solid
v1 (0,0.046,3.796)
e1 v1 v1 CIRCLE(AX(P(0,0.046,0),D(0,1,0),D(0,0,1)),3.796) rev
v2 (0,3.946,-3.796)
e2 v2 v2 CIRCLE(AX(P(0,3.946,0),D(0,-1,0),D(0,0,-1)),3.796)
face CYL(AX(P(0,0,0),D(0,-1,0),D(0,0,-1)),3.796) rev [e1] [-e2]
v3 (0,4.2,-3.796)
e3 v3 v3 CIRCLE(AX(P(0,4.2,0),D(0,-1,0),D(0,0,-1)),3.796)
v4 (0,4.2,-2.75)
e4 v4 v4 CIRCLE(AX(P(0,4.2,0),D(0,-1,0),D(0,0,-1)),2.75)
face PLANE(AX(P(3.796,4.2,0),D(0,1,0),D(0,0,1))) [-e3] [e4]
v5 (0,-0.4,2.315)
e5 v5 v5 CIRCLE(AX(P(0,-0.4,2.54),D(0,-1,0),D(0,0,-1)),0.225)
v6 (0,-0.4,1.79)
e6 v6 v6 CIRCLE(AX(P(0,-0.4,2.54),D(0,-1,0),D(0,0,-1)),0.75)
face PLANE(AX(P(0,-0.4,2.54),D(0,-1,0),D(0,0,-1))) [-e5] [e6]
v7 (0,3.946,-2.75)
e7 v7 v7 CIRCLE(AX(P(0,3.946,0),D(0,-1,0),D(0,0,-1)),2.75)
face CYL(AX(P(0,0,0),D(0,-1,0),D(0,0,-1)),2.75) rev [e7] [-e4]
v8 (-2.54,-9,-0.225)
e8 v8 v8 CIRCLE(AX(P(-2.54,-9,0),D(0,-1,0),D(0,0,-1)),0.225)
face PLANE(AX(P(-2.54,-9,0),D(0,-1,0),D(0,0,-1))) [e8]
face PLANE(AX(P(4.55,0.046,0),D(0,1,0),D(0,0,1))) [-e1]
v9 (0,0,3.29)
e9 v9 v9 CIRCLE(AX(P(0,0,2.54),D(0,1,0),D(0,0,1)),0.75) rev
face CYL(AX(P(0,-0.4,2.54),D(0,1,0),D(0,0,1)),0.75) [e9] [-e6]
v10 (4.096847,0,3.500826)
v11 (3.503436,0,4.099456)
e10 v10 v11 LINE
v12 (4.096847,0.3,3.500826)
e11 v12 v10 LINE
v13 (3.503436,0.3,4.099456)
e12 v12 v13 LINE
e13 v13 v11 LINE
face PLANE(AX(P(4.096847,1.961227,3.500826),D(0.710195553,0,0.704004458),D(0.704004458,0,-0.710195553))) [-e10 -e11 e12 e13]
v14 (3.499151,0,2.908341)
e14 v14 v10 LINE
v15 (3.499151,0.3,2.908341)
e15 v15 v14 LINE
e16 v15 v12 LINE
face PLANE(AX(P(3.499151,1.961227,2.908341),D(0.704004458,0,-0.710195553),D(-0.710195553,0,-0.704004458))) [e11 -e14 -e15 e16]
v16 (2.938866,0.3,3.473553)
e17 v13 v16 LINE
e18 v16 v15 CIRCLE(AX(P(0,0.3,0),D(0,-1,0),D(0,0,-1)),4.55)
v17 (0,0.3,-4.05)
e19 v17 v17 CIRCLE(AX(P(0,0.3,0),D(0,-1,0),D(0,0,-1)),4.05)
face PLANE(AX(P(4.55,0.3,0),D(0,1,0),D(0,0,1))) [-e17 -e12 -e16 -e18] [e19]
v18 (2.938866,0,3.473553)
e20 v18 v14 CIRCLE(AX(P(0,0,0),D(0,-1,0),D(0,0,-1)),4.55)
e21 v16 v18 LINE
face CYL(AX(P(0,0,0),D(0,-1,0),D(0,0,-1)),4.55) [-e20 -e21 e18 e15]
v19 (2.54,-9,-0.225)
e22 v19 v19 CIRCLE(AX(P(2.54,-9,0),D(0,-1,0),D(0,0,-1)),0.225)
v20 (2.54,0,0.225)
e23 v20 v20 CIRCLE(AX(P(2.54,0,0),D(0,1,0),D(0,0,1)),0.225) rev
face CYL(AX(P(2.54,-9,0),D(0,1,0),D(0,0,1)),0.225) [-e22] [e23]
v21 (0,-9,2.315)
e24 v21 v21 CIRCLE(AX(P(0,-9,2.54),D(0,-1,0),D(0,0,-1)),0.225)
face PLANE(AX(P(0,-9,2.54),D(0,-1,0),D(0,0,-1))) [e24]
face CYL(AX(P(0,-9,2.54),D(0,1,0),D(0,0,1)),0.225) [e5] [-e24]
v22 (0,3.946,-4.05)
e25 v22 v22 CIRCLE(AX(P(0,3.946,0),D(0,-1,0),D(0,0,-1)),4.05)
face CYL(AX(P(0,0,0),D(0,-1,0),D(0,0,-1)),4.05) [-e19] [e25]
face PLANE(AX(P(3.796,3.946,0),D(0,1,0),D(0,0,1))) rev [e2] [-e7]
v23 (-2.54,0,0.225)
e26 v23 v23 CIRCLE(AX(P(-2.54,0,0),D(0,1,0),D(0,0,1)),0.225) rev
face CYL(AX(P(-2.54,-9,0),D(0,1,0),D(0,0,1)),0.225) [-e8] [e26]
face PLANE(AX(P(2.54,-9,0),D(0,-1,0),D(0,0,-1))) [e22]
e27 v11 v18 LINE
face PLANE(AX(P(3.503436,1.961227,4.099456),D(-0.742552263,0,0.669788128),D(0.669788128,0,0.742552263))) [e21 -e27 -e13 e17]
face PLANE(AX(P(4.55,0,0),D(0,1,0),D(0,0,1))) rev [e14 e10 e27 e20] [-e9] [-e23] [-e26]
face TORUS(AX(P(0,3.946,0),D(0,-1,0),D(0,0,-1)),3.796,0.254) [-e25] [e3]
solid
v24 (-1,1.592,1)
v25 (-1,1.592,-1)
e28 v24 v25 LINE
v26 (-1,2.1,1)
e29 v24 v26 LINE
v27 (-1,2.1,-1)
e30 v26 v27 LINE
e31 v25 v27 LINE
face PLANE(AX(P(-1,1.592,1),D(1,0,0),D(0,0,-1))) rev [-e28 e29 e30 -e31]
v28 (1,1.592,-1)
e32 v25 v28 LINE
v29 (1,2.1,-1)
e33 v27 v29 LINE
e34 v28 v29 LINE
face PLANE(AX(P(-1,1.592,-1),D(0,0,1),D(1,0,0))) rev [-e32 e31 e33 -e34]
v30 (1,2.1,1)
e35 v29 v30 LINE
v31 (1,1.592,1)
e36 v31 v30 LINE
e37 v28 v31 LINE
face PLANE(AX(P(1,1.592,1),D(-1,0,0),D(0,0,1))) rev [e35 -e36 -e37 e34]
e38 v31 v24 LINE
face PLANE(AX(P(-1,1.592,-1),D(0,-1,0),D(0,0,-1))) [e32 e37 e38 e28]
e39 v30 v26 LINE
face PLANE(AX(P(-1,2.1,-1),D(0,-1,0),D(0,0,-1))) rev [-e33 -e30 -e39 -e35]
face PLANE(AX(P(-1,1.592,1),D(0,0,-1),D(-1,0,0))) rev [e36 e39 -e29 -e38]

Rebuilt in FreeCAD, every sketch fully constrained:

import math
import FreeCAD as App
import Part
import Sketcher
Q = App.Units.Quantity

doc = App.newDocument("Part")
body = doc.addObject("PartDesign::Body", "Body")

# Sketch on XY plane
sketch1 = doc.addObject("Sketcher::SketchObject", "Sketch")
body.addObject(sketch1)
sketch1.AttachmentSupport = (doc.XY_Plane, [""])
sketch1.MapMode = "FlatFace"
sketch1.addGeometry([
    Part.LineSegment(App.Vector(4.55, 0, 0), App.Vector(4.55, 0.3, 0)),  # 0
    Part.LineSegment(App.Vector(4.55, 0.3, 0), App.Vector(4.05, 0.3, 0)),  # 1
    Part.LineSegment(App.Vector(4.05, 0.3, 0), App.Vector(4.05, 3.946, 0)),  # 2
    Part.ArcOfCircle(Part.Circle(App.Vector(3.796, 3.946, 0), App.Vector(0, 0, 1), 0.254), math.radians(0), math.radians(90)),  # 3
    Part.LineSegment(App.Vector(3.796, 4.2, 0), App.Vector(2.75, 4.2, 0)),  # 4
    Part.LineSegment(App.Vector(2.75, 4.2, 0), App.Vector(2.75, 3.946, 0)),  # 5
    Part.LineSegment(App.Vector(2.75, 3.946, 0), App.Vector(3.796, 3.946, 0)),  # 6
    Part.LineSegment(App.Vector(3.796, 3.946, 0), App.Vector(3.796, 0.046, 0)),  # 7
    Part.LineSegment(App.Vector(3.796, 0.046, 0), App.Vector(4.296, 0.046, 0)),  # 8
    Part.LineSegment(App.Vector(4.296, 0.046, 0), App.Vector(4.296, 0, 0)),  # 9
    Part.LineSegment(App.Vector(4.296, 0, 0), App.Vector(4.55, 0, 0)),  # 10
], False)
sketch1.addConstraint([
    Sketcher.Constraint("Coincident", 0, 2, 1, 1),
    Sketcher.Constraint("Coincident", 1, 2, 2, 1),
    Sketcher.Constraint("Tangent", 2, 2, 3, 1),
    Sketcher.Constraint("Tangent", 3, 2, 4, 1),
    Sketcher.Constraint("Coincident", 4, 2, 5, 1),
    Sketcher.Constraint("Coincident", 5, 2, 6, 1),
    Sketcher.Constraint("Coincident", 6, 2, 7, 1),
    Sketcher.Constraint("Coincident", 7, 2, 8, 1),
    Sketcher.Constraint("Coincident", 8, 2, 9, 1),
    Sketcher.Constraint("Coincident", 9, 2, 10, 1),
    Sketcher.Constraint("Coincident", 10, 2, 0, 1),
    Sketcher.Constraint("Vertical", 0),
    Sketcher.Constraint("Horizontal", 1),
    Sketcher.Constraint("Vertical", 2),
    Sketcher.Constraint("Horizontal", 4),
    Sketcher.Constraint("Vertical", 5),
    Sketcher.Constraint("Horizontal", 6),
    Sketcher.Constraint("Vertical", 7),
    Sketcher.Constraint("Horizontal", 8),
    Sketcher.Constraint("Vertical", 9),
    Sketcher.Constraint("Horizontal", 10),
    Sketcher.Constraint("Coincident", 6, 2, 3, 3),
    Sketcher.Constraint("PointOnObject", 9, 2, -1),
    Sketcher.Constraint("Equal", 1, 8),
    Sketcher.Constraint("DistanceX", 1, 2, 1, 1, Q("0.5 mm")),
    Sketcher.Constraint("DistanceY", 0, 1, 0, 2, Q("0.3 mm")),
    Sketcher.Constraint("DistanceY", 7, 2, 7, 1, Q("3.9 mm")),
    Sketcher.Constraint("Radius", 3, Q("0.254 mm")),
    Sketcher.Constraint("DistanceY", -1, 1, 3, 2, Q("4.2 mm")),
    Sketcher.Constraint("DistanceX", 4, 2, 2, 2, Q("1.3 mm")),
    Sketcher.Constraint("DistanceX", -1, 1, 0, 2, Q("4.55 mm")),
])
revolution = doc.addObject("PartDesign::Revolution", "Revolution")
body.addObject(revolution)
revolution.Profile = sketch1
revolution.ReferenceAxis = (sketch1, ["V_Axis"])
revolution.Angle = 360

# Sketch on XZ plane
sketch2 = doc.addObject("Sketcher::SketchObject", "Sketch001")
body.addObject(sketch2)
sketch2.AttachmentSupport = (doc.XZ_Plane, [""])
sketch2.MapMode = "FlatFace"
sketch2.addGeometry(Part.Circle(App.Vector(0, 0, 0), App.Vector(0, 0, 1), 4.55), False)
sketch2.addConstraint([
    Sketcher.Constraint("Coincident", 0, 3, -1, 1),
    Sketcher.Constraint("Diameter", 0, Q("9.1 mm")),
])
pad1 = doc.addObject("PartDesign::Pad", "Pad")
body.addObject(pad1)
pad1.Profile = sketch2
pad1.Length = 0.046
pad1.Reversed = True

# Sketch on XZ plane
sketch3 = doc.addObject("Sketcher::SketchObject", "Sketch002")
body.addObject(sketch3)
sketch3.AttachmentSupport = (doc.XZ_Plane, [""])
sketch3.MapMode = "FlatFace"
sketch3.addGeometry([
    Part.LineSegment(App.Vector(2.938866, 3.473553, 0), App.Vector(3.499151, 2.908341, 0)),
    Part.LineSegment(App.Vector(3.499151, 2.908341, 0), App.Vector(4.096847, 3.500826, 0)),
    Part.LineSegment(App.Vector(4.096847, 3.500826, 0), App.Vector(3.503436, 4.099456, 0)),
    Part.LineSegment(App.Vector(3.503436, 4.099456, 0), App.Vector(2.938866, 3.473553, 0)),
], False)
sketch3.addConstraint([
    Sketcher.Constraint("Coincident", 0, 2, 1, 1),
    Sketcher.Constraint("Coincident", 1, 2, 2, 1),
    Sketcher.Constraint("Coincident", 2, 2, 3, 1),
    Sketcher.Constraint("Coincident", 3, 2, 0, 1),
    Sketcher.Constraint("Perpendicular", 0, 1),
    Sketcher.Constraint("Perpendicular", 1, 2),
    Sketcher.Constraint("Equal", 2, 3),
    Sketcher.Constraint("Distance", 2, Q("0.842908 mm")),
    Sketcher.Constraint("DistanceX", -1, 1, 0, 2, Q("3.499151 mm")),
    Sketcher.Constraint("DistanceY", -1, 1, 0, 2, Q("2.908341 mm")),
    Sketcher.Constraint("DistanceX", 2, 2, 1, 2, Q("0.593411 mm")),
    Sketcher.Constraint("DistanceY", 0, 2, 3, 2, Q("0.565212 mm")),
])
pad2 = doc.addObject("PartDesign::Pad", "Pad001")
body.addObject(pad2)
pad2.Profile = sketch3
pad2.Length = 0.3
pad2.Reversed = True

# Sketch on XZ plane
sketch4 = doc.addObject("Sketcher::SketchObject", "Sketch003")
body.addObject(sketch4)
sketch4.AttachmentSupport = (doc.XZ_Plane, [""])
sketch4.MapMode = "FlatFace"
sketch4.addGeometry([
    Part.Circle(App.Vector(-2.54, 0, 0), App.Vector(0, 0, 1), 0.225),
    Part.Circle(App.Vector(2.54, 0, 0), App.Vector(0, 0, 1), 0.225),
    Part.Circle(App.Vector(0, 2.54, 0), App.Vector(0, 0, 1), 0.225),
], False)
sketch4.addConstraint([
    Sketcher.Constraint("Equal", 0, 1),
    Sketcher.Constraint("Equal", 1, 2),
    Sketcher.Constraint("Symmetric", 0, 3, 1, 3, -1, 1),
    Sketcher.Constraint("PointOnObject", 0, 3, -1),
    Sketcher.Constraint("PointOnObject", 2, 3, -2),
    Sketcher.Constraint("Diameter", 0, Q("0.45 mm")),
    Sketcher.Constraint("DistanceX", 0, 3, -1, 1, Q("2.54 mm")),
    Sketcher.Constraint("DistanceY", -1, 1, 2, 3, Q("2.54 mm")),
])
pad3 = doc.addObject("PartDesign::Pad", "Pad002")
body.addObject(pad3)
pad3.Profile = sketch4
pad3.Length = 9

# Sketch on XZ plane
sketch5 = doc.addObject("Sketcher::SketchObject", "Sketch004")
body.addObject(sketch5)
sketch5.AttachmentSupport = (doc.XZ_Plane, [""])
sketch5.MapMode = "FlatFace"
sketch5.addGeometry(Part.Circle(App.Vector(0, 2.54, 0), App.Vector(0, 0, 1), 0.75), False)
sketch5.addConstraint([
    Sketcher.Constraint("PointOnObject", 0, 3, -2),
    Sketcher.Constraint("Diameter", 0, Q("1.5 mm")),
    Sketcher.Constraint("DistanceY", -1, 1, 0, 3, Q("2.54 mm")),
])
pad4 = doc.addObject("PartDesign::Pad", "Pad003")
body.addObject(pad4)
pad4.Profile = sketch5
pad4.Length = 0.4
body2 = doc.addObject("PartDesign::Body", "Body001")

# Sketch on XZ plane
sketch6 = doc.addObject("Sketcher::SketchObject", "Sketch005")
body2.addObject(sketch6)
sketch6.AttachmentSupport = (doc.getObject("XZ_Plane001"), [""])
sketch6.MapMode = "FlatFace"
sketch6.AttachmentOffset = App.Placement(App.Vector(0, 0, -2.1), App.Rotation())
sketch6.addGeometry([
    Part.LineSegment(App.Vector(-1, 1, 0), App.Vector(-1, -1, 0)),
    Part.LineSegment(App.Vector(-1, -1, 0), App.Vector(1, -1, 0)),
    Part.LineSegment(App.Vector(1, -1, 0), App.Vector(1, 1, 0)),
    Part.LineSegment(App.Vector(1, 1, 0), App.Vector(-1, 1, 0)),
], False)
sketch6.addConstraint([
    Sketcher.Constraint("Coincident", 0, 2, 1, 1),
    Sketcher.Constraint("Coincident", 1, 2, 2, 1),
    Sketcher.Constraint("Coincident", 2, 2, 3, 1),
    Sketcher.Constraint("Coincident", 3, 2, 0, 1),
    Sketcher.Constraint("Vertical", 0),
    Sketcher.Constraint("Horizontal", 1),
    Sketcher.Constraint("Vertical", 2),
    Sketcher.Constraint("Horizontal", 3),
    Sketcher.Constraint("Symmetric", 0, 2, 2, 2, -1, 1),
    Sketcher.Constraint("Equal", 3, 0),
    Sketcher.Constraint("DistanceX", 1, 1, 1, 2, Q("2 mm")),
])
pad5 = doc.addObject("PartDesign::Pad", "Pad004")
body2.addObject(pad5)
pad5.Profile = sketch6
pad5.Length = 0.508

doc.recompute()
